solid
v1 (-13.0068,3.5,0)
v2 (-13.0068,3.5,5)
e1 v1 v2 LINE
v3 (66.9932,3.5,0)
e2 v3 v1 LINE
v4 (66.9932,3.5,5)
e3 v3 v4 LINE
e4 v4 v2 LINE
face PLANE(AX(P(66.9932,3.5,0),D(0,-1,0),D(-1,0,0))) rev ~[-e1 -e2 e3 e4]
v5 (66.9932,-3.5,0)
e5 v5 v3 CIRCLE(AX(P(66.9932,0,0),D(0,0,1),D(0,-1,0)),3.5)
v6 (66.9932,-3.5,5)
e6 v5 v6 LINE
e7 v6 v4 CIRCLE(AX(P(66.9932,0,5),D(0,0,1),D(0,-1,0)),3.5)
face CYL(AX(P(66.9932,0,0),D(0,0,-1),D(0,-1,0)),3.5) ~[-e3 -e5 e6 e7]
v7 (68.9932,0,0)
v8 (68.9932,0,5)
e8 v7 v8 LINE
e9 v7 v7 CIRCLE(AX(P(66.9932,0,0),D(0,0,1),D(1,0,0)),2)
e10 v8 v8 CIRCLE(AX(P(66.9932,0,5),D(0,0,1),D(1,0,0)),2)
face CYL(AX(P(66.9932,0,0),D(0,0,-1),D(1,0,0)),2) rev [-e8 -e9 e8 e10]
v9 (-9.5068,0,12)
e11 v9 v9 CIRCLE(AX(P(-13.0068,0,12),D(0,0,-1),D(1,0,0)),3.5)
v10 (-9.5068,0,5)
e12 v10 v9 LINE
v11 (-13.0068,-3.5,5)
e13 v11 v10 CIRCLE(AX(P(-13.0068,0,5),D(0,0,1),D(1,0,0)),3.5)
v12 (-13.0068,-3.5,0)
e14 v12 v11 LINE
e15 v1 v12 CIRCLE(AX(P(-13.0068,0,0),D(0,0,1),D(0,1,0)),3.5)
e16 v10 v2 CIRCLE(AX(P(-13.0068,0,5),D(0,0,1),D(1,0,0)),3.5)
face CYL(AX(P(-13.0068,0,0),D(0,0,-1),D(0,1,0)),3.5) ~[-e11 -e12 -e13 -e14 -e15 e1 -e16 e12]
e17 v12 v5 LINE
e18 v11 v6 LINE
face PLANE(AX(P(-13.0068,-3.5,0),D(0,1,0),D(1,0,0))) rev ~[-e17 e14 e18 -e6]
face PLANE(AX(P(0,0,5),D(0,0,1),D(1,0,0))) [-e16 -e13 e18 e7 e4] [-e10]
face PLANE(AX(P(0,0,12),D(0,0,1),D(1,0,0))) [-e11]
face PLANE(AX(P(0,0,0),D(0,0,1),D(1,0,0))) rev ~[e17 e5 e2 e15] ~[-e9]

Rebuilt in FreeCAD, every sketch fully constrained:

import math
import FreeCAD as App
import Part
import Sketcher
from FreeCAD import Vector

doc = App.newDocument("Part")
body = doc.addObject("PartDesign::Body", "Body")

# Sketch on XY plane
sketch1 = doc.addObject("Sketcher::SketchObject", "Sketch")
body.addObject(sketch1)
sketch1.AttachmentSupport = (doc.XY_Plane, [""])
sketch1.MapMode = "FlatFace"
sketch1.addGeometry(Part.ArcOfCircle(Part.Circle(Vector(-13, 0, 0), Vector(0, 0, 1), 3.5), math.radians(90), math.radians(270)), False)
sketch1.addGeometry(Part.LineSegment(Vector(-13, -3.5, 0), Vector(67, -3.5, 0)), False)
sketch1.addGeometry(Part.ArcOfCircle(Part.Circle(Vector(67, 0, 0), Vector(0, 0, 1), 3.5), math.radians(-90), math.radians(90)), False)
sketch1.addGeometry(Part.LineSegment(Vector(67, 3.5, 0), Vector(-13, 3.5, 0)), False)
sketch1.addGeometry(Part.Circle(Vector(67, 0, 0), Vector(0, 0, 1), 2), False)
sketch1.addConstraint(Sketcher.Constraint("Tangent", 0, 2, 1, 1))
sketch1.addConstraint(Sketcher.Constraint("Tangent", 1, 2, 2, 1))
sketch1.addConstraint(Sketcher.Constraint("Tangent", 2, 2, 3, 1))
sketch1.addConstraint(Sketcher.Constraint("Tangent", 3, 2, 0, 1))
sketch1.addConstraint(Sketcher.Constraint("Horizontal", 1))
sketch1.addConstraint(Sketcher.Constraint("Horizontal", 3))
sketch1.addConstraint(Sketcher.Constraint("Coincident", 4, 3, 2, 3))
sketch1.addConstraint(Sketcher.Constraint("PointOnObject", 0, 3, -1))
sketch1.addConstraint(Sketcher.Constraint("Diameter", 4, 4.0))
sketch1.addConstraint(Sketcher.Constraint("Radius", 0, 3.5))
sketch1.addConstraint(Sketcher.Constraint("DistanceX", 1, 1, 1, 2, 80.0))
sketch1.addConstraint(Sketcher.Constraint("DistanceX", 0, 3, -1, 1, 13.0068))
pad1 = doc.addObject("PartDesign::Pad", "Pad")
body.addObject(pad1)
pad1.Profile = sketch1
pad1.Length = 5

# Sketch on XY plane
sketch2 = doc.addObject("Sketcher::SketchObject", "Sketch001")
body.addObject(sketch2)
sketch2.AttachmentSupport = (doc.XY_Plane, [""])
sketch2.MapMode = "FlatFace"
sketch2.AttachmentOffset = App.Placement(Vector(0, 0, 5), App.Rotation())
sketch2.addGeometry(Part.Circle(Vector(-13, 0, 0), Vector(0, 0, 1), 3.5), False)
sketch2.addConstraint(Sketcher.Constraint("PointOnObject", 0, 3, -1))
sketch2.addConstraint(Sketcher.Constraint("Diameter", 0, 7.0))
sketch2.addConstraint(Sketcher.Constraint("DistanceX", 0, 3, -1, 1, 13.0068))
pad2 = doc.addObject("PartDesign::Pad", "Pad001")
body.addObject(pad2)
pad2.Profile = sketch2
pad2.Length = 7

doc.recompute()
